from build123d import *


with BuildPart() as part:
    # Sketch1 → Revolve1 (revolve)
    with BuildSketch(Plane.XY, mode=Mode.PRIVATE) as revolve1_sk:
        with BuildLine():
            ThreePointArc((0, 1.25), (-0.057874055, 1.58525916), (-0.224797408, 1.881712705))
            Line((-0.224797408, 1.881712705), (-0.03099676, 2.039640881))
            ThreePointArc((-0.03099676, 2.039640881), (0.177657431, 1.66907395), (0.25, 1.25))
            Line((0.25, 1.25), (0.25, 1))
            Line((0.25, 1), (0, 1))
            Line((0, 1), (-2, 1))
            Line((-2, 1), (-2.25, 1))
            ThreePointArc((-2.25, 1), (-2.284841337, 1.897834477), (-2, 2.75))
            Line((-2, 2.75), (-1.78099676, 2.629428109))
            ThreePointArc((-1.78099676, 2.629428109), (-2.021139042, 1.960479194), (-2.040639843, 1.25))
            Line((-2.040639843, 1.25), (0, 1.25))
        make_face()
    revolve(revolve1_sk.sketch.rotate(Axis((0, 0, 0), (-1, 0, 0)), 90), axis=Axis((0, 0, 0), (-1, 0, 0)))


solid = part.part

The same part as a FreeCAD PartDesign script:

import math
import FreeCAD as App
import Part
import Sketcher

V = App.Vector

doc = App.newDocument("Part")
body = doc.addObject("PartDesign::Body", "Body")

sketch1 = body.newObject("Sketcher::SketchObject", "Sketch")
sketch1.AttachmentSupport = (doc.getObject("XY_Plane"), [""])
sketch1.MapMode = "FlatFace"
sketch1.addGeometry(Part.ArcOfCircle(Part.Circle(V(-1, 1.25, 0), V(0, 0, 1), 1), math.radians(0), math.radians(39)), False)
sketch1.addGeometry(Part.LineSegment(V(0, 1.25, 0), V(-2.04, 1.25, 0)), False)
sketch1.addGeometry(Part.ArcOfCircle(Part.Circle(V(0.19, 1.54, 0), V(0, 0, 1), 2.25), math.radians(151), math.radians(188)), False)
sketch1.addGeometry(Part.LineSegment(V(-1.78, 2.63, 0), V(-2, 2.75, 0)), False)
sketch1.addGeometry(Part.ArcOfCircle(Part.Circle(V(0.19, 1.54, 0), V(0, 0, 1), 2.5), math.radians(151), math.radians(193)), False)
sketch1.addGeometry(Part.LineSegment(V(-2.25, 1, 0), V(0.25, 1, 0)), False)
sketch1.addGeometry(Part.LineSegment(V(0.25, 1, 0), V(0.25, 1.25, 0)), False)
sketch1.addGeometry(Part.ArcOfCircle(Part.Circle(V(-1, 1.25, 0), V(0, 0, 1), 1.25), math.radians(0), math.radians(39)), False)
sketch1.addGeometry(Part.LineSegment(V(-0.03, 2.04, 0), V(-0.22, 1.88, 0)), False)
sketch1.addConstraint(Sketcher.Constraint("Coincident", 0, 1, 1, 1))
sketch1.addConstraint(Sketcher.Constraint("Coincident", 1, 2, 2, 2))
sketch1.addConstraint(Sketcher.Constraint("Coincident", 2, 1, 3, 1))
sketch1.addConstraint(Sketcher.Constraint("Coincident", 3, 2, 4, 1))
sketch1.addConstraint(Sketcher.Constraint("Coincident", 4, 2, 5, 1))
sketch1.addConstraint(Sketcher.Constraint("Coincident", 5, 2, 6, 1))
sketch1.addConstraint(Sketcher.Constraint("Tangent", 6, 2, 7, 1))
sketch1.addConstraint(Sketcher.Constraint("Coincident", 7, 2, 8, 1))
sketch1.addConstraint(Sketcher.Constraint("Coincident", 8, 2, 0, 2))
sketch1.addConstraint(Sketcher.Constraint("Horizontal", 1))
sketch1.addConstraint(Sketcher.Constraint("Horizontal", 5))
sketch1.addConstraint(Sketcher.Constraint("Vertical", 6))
sketch1.addConstraint(Sketcher.Constraint("Coincident", 4, 3, 2, 3))
sketch1.addConstraint(Sketcher.Constraint("Coincident", 7, 3, 0, 3))
sketch1.addConstraint(Sketcher.Constraint("PointOnObject", 0, 1, -2))
sketch1.addConstraint(Sketcher.Constraint("Horizontal", 7, 3, 0, 1))
sketch1.addConstraint(Sketcher.Constraint("Equal", 3, 8))
sketch1.addConstraint(Sketcher.Constraint("Radius", 0, 1.0))
sketch1.addConstraint(Sketcher.Constraint("Radius", 4, 2.5))
sketch1.addConstraint(Sketcher.Constraint("Radius", 2, 2.25))
sketch1.addConstraint(Sketcher.Constraint("DistanceX", 5, 1, 5, 2, 2.5))
sketch1.addConstraint(Sketcher.Constraint("DistanceX", 3, 2, -1, 1, 2.0))
sketch1.addConstraint(Sketcher.Constraint("DistanceY", -1, 1, 4, 2, 1.0))
sketch1.addConstraint(Sketcher.Constraint("DistanceY", 6, 1, 6, 2, 0.25))
sketch1.addConstraint(Sketcher.Constraint("DistanceY", 1, 2, 3, 2, 1.5))
sketch1.addConstraint(Sketcher.Constraint("DistanceX", 8, 2, 7, 2, 0.193801))
sketch1.addConstraint(Sketcher.Constraint("DistanceY", -1, 1, 2, 1, 2.629428))
sketch1.addConstraint(Sketcher.Constraint("DistanceY", -1, 1, 7, 2, 2.039641))
revolution = body.newObject("PartDesign::Revolution", "Revolution")
revolution.Profile = sketch1
revolution.ReferenceAxis = (sketch1, ["H_Axis"])
revolution.Angle = 360

doc.recompute()
